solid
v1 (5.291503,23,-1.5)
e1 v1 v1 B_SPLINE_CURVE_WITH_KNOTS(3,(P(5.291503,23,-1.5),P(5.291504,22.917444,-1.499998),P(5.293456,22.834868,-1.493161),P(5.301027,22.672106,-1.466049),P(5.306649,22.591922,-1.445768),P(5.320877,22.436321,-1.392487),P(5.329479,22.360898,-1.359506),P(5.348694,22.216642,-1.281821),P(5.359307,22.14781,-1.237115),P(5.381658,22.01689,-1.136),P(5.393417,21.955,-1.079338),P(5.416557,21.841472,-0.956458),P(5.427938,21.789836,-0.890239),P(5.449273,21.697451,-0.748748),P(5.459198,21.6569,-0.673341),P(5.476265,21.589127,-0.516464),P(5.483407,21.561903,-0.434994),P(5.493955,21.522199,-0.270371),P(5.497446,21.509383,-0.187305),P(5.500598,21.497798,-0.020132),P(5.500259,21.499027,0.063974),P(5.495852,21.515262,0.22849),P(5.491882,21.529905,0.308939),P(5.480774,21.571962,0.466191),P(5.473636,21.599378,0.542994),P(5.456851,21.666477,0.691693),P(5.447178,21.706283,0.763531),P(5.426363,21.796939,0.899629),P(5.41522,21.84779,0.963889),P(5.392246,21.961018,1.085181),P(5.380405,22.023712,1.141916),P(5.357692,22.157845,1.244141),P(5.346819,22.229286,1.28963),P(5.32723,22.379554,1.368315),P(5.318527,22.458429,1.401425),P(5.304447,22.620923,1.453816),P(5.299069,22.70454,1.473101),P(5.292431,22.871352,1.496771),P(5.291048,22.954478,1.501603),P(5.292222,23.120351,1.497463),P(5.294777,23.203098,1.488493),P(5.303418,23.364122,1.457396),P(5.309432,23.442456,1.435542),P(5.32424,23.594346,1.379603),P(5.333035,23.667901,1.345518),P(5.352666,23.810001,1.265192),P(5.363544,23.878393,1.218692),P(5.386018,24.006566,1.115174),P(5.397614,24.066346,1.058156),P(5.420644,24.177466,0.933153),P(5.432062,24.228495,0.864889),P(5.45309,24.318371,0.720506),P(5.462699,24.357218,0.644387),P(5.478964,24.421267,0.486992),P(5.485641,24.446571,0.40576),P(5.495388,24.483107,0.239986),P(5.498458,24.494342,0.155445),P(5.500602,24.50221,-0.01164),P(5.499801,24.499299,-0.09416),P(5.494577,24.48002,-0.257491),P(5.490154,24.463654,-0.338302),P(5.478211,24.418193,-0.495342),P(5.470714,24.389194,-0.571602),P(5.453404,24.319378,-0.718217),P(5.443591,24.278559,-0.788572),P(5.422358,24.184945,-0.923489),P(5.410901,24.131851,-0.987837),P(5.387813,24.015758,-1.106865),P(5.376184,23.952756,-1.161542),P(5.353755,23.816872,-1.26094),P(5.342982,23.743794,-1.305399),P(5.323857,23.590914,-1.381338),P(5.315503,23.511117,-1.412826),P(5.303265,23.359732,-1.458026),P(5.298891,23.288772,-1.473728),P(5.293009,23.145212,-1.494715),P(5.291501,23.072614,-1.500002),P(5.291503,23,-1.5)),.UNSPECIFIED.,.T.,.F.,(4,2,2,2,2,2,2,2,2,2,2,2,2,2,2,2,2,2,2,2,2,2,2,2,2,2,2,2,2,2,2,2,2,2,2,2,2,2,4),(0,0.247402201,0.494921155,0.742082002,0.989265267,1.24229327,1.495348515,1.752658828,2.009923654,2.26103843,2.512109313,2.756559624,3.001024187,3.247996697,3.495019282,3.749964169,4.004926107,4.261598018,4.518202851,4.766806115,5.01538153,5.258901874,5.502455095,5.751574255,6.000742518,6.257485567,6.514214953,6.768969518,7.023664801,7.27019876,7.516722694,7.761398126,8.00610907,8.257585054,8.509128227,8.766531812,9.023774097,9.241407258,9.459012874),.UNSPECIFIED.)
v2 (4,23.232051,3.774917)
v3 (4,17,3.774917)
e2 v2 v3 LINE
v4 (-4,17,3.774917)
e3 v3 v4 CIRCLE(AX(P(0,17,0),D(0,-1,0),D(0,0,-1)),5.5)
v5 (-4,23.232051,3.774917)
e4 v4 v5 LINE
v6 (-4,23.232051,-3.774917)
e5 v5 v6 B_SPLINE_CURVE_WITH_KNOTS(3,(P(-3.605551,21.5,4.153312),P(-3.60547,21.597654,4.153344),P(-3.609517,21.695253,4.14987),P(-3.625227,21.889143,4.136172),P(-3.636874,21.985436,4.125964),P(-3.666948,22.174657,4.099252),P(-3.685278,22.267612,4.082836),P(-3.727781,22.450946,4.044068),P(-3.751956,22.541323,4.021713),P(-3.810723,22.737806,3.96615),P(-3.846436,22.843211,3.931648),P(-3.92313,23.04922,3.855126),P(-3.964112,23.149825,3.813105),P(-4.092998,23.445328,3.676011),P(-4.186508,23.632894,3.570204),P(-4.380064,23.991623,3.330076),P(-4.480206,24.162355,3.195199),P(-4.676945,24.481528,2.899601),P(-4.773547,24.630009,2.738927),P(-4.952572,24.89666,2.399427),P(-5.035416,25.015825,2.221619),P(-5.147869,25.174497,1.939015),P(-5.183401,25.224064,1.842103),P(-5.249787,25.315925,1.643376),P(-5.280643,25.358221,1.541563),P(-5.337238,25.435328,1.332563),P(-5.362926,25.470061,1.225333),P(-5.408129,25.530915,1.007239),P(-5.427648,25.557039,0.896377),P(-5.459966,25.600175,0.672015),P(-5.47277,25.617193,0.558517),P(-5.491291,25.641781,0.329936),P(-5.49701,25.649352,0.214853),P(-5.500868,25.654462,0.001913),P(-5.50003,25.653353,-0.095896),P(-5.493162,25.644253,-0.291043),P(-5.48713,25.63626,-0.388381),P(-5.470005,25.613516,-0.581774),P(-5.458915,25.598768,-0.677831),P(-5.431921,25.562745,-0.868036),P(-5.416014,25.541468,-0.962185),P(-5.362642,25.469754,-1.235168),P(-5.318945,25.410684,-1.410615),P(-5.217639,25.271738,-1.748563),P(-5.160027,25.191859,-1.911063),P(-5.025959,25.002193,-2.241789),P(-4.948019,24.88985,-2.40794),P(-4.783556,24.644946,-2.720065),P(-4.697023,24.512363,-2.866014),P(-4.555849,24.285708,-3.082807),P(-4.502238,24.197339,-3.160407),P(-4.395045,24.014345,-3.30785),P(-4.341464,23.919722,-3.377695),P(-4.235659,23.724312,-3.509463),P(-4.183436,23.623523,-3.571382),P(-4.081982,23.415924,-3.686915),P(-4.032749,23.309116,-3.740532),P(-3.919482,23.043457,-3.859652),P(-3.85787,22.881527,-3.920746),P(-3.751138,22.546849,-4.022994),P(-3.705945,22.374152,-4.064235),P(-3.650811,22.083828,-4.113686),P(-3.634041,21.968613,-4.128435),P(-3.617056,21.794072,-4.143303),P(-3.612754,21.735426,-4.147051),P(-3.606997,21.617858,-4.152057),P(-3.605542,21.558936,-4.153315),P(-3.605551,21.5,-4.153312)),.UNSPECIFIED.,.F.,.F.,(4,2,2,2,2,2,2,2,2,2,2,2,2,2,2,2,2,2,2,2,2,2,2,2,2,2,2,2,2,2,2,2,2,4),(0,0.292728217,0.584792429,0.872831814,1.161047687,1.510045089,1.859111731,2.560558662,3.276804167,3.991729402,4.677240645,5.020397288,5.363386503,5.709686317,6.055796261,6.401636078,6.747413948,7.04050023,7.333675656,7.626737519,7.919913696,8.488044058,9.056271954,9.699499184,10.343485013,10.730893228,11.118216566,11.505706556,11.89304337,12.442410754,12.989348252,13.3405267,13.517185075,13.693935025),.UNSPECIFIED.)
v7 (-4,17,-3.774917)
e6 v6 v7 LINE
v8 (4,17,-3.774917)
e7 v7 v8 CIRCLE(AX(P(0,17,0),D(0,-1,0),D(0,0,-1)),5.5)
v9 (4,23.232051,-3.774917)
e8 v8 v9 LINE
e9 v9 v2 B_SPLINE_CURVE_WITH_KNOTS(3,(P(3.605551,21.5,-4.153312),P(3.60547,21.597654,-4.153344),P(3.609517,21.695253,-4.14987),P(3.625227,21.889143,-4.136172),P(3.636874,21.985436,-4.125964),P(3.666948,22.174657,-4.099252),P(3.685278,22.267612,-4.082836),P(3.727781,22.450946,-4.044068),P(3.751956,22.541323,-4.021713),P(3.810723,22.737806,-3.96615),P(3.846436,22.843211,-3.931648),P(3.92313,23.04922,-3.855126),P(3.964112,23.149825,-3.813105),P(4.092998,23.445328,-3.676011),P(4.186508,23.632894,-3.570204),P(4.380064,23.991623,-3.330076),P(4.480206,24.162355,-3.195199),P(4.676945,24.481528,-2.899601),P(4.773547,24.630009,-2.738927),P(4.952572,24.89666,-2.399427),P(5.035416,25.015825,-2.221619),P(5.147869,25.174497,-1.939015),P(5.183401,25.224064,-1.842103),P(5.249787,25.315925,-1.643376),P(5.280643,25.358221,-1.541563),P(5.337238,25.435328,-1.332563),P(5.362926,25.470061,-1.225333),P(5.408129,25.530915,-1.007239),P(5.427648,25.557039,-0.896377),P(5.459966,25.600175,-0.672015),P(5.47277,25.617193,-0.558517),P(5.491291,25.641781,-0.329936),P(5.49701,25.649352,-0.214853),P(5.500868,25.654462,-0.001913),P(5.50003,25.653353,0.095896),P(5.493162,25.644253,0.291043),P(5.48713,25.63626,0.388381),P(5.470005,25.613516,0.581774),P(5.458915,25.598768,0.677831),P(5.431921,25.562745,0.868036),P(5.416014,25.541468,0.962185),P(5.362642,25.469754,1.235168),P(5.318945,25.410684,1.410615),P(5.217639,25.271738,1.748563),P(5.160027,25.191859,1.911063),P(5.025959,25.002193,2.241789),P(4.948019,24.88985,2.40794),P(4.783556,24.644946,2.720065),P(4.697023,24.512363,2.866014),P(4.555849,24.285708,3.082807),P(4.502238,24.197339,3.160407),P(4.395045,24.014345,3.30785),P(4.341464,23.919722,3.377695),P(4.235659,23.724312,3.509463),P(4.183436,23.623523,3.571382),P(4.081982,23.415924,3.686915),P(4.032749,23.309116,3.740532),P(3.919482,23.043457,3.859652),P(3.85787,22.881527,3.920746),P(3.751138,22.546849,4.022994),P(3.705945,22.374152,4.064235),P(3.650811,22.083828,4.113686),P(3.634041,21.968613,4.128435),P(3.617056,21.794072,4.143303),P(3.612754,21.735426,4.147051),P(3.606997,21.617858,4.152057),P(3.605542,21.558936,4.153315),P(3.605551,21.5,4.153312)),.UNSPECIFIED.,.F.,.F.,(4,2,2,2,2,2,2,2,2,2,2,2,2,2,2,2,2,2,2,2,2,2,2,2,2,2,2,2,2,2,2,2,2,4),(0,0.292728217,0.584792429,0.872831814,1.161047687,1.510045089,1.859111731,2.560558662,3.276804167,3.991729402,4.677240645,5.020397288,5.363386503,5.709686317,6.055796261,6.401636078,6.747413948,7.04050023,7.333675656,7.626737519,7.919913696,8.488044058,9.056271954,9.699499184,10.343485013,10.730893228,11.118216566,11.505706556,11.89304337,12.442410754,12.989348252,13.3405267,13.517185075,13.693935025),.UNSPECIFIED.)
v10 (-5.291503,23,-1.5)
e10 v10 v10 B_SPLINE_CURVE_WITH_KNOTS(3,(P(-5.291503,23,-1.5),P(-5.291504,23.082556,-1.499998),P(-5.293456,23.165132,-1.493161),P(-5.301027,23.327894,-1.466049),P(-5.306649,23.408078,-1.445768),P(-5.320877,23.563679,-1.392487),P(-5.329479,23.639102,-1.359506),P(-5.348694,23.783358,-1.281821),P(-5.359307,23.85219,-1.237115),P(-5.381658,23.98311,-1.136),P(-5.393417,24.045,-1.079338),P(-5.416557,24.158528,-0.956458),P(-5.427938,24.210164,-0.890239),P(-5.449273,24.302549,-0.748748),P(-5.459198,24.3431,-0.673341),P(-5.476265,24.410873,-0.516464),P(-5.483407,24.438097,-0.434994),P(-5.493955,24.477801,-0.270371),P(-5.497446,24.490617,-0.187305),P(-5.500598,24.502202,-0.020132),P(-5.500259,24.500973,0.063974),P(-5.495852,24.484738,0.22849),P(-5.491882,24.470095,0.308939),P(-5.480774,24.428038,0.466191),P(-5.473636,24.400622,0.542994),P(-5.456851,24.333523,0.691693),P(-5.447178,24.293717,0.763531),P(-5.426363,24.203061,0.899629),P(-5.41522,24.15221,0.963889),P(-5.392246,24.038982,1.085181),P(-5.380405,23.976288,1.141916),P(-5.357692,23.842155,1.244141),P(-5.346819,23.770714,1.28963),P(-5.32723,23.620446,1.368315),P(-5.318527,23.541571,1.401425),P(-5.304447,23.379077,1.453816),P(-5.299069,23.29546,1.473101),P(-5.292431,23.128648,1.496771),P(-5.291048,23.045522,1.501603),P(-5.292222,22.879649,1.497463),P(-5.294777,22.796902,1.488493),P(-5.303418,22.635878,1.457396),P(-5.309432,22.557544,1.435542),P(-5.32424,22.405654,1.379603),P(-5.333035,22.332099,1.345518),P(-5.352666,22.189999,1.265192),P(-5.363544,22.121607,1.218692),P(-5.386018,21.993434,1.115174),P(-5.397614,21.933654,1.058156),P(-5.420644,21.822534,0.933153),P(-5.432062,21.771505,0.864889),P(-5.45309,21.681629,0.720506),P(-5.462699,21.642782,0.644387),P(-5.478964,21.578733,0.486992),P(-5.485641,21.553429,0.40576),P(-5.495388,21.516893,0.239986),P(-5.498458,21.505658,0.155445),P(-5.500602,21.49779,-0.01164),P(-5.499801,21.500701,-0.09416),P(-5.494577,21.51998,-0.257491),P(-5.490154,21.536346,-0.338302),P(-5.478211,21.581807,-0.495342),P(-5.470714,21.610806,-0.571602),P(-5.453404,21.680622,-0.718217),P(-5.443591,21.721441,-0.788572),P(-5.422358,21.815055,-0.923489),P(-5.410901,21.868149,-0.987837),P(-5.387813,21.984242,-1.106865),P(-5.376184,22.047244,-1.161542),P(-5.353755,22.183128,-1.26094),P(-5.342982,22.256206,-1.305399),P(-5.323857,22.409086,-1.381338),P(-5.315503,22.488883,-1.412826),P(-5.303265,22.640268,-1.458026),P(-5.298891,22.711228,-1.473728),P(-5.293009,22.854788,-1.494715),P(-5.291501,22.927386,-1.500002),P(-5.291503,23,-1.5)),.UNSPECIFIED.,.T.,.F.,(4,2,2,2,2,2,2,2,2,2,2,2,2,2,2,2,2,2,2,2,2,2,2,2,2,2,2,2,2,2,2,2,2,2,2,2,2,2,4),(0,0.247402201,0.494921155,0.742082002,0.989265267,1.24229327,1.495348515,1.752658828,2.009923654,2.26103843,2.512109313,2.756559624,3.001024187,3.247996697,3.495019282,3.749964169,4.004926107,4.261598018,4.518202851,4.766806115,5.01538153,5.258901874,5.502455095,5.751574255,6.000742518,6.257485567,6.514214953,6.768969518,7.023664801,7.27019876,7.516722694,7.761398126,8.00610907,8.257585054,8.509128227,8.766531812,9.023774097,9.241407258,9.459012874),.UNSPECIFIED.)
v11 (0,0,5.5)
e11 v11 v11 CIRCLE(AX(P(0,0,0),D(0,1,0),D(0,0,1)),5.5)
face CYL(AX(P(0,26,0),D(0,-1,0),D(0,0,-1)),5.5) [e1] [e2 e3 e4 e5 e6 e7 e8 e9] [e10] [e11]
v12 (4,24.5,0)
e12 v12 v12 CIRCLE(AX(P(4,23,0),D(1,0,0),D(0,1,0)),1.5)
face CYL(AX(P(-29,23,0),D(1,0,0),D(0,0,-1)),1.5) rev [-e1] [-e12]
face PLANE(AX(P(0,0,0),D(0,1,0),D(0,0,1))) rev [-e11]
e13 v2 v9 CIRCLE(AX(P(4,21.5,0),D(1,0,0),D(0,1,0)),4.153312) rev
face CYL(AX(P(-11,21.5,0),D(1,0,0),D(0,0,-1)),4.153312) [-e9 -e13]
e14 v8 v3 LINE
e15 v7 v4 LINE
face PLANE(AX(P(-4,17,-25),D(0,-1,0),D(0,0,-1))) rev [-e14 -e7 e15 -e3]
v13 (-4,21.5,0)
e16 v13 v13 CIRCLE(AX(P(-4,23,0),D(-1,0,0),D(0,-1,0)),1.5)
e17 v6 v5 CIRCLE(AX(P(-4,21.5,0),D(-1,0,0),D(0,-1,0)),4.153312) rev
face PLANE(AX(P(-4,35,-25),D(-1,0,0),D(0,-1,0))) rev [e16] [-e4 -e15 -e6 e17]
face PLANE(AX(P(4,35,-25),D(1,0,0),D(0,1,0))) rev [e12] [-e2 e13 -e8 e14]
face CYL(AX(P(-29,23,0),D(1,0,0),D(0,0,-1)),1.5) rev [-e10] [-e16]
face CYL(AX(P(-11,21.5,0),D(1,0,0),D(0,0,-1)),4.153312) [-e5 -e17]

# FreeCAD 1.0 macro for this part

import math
import FreeCAD as App
import Part
import Sketcher

V = App.Vector


def add_polygon(sketch, points):
    """Adds a closed chain of lines whose ends are joined by coincident constraints."""
    first, n = sketch.GeometryCount, len(points)
    for a, b in zip(points, points[1:] + points[:1]):
        sketch.addGeometry(Part.LineSegment(App.Vector(*a, 0), App.Vector(*b, 0)), False)
    for i in range(n):
        sketch.addConstraint(Sketcher.Constraint("Coincident", first + i, 2, first + (i + 1) % n, 1))

doc = App.newDocument("Part")
body = doc.addObject("PartDesign::Body", "Body")

# Sketch on XZ plane
sketch1 = body.newObject("Sketcher::SketchObject", "Sketch")
sketch1.AttachmentSupport = (doc.getObject("XZ_Plane"), [""])
sketch1.MapMode = "FlatFace"
sketch1.addGeometry(Part.Circle(V(0, 0, 0), V(0, 0, 1), 6), False)
sketch1.addConstraint([
    Sketcher.Constraint("Coincident", 0, 3, -1, 1),
    Sketcher.Constraint("Diameter", 0, 11.0),
])
pad1 = body.newObject("PartDesign::Pad", "Pad")
pad1.Profile = sketch1
pad1.Length = 26
pad1.Reversed = True

# Sketch on XY plane
sketch2 = body.newObject("Sketcher::SketchObject", "Sketch001")
sketch2.AttachmentSupport = (doc.getObject("XY_Plane"), [""])
sketch2.MapMode = "FlatFace"
add_polygon(sketch2, [(-4, 35), (-4, 17), (4, 17), (4, 35)])  # lines 0-3
sketch2.addConstraint([
    Sketcher.Constraint("Vertical", 0),
    Sketcher.Constraint("Horizontal", 1),
    Sketcher.Constraint("Vertical", 2),
    Sketcher.Constraint("Horizontal", 3),
    Sketcher.Constraint("DistanceX", 1, 1, 1, 2, 8.0),
    Sketcher.Constraint("DistanceY", 0, 2, 0, 1, 18.0),
    Sketcher.Constraint("DistanceX", 0, 2, -1, 1, 4.0),
    Sketcher.Constraint("DistanceY", -1, 1, 0, 2, 17.0),
])
pocket1 = body.newObject("PartDesign::Pocket", "Pocket")
pocket1.Profile = sketch2
pocket1.Length = 50
pocket1.Midplane = True

# Sketch on YZ plane
sketch3 = body.newObject("Sketcher::SketchObject", "Sketch002")
sketch3.AttachmentSupport = (doc.getObject("YZ_Plane"), [""])
sketch3.MapMode = "FlatFace"
sketch3.AttachmentOffset = App.Placement(V(0, 0, -4), App.Rotation())
sketch3.addGeometry(Part.Circle(V(23, 0, 0), V(0, 0, 1), 1.5), False)
sketch3.addConstraint([
    Sketcher.Constraint("PointOnObject", 0, 3, -1),
    Sketcher.Constraint("Diameter", 0, 3.0),
    Sketcher.Constraint("DistanceX", -1, 1, 0, 3, 23.0),
])
pocket2 = body.newObject("PartDesign::Pocket", "Pocket001")
pocket2.Profile = sketch3
pocket2.Length = 50
pocket2.Midplane = True

# Sketch on YZ plane
sketch4 = body.newObject("Sketcher::SketchObject", "Sketch003")
sketch4.AttachmentSupport = (doc.getObject("YZ_Plane"), [""])
sketch4.MapMode = "FlatFace"
sketch4.addGeometry([
    Part.LineSegment(V(24.9, 12.2, 0), V(21.5, 4.2, 0)),  # 0
    Part.ArcOfCircle(Part.Circle(V(21.5, 0, 0), V(0, 0, 1), 4.2), math.radians(-90), math.radians(90)),  # 1
    Part.LineSegment(V(21.5, -4.2, 0), V(24.6, -13, 0)),  # 2
    Part.LineSegment(V(24.6, -13, 0), V(32.8, -0.6, 0)),  # 3
    Part.LineSegment(V(32.8, -0.6, 0), V(24.9, 12.2, 0)),  # 4
], False)
sketch4.addConstraint([
    Sketcher.Constraint("Coincident", 0, 2, 1, 2),
    Sketcher.Constraint("Coincident", 1, 1, 2, 1),
    Sketcher.Constraint("Coincident", 2, 2, 3, 1),
    Sketcher.Constraint("Coincident", 3, 2, 4, 1),
    Sketcher.Constraint("Coincident", 4, 2, 0, 1),
    Sketcher.Constraint("Symmetric", 0, 2, 1, 1, -1),
    Sketcher.Constraint("Vertical", 1, 3, 0, 2),
    Sketcher.Constraint("DistanceX", -1, 1, 1, 3, 21.5),
    Sketcher.Constraint("Radius", 1, 4.153312),
    Sketcher.Constraint("DistanceY", 2, 2, 1, 1, 8.838098),
    Sketcher.Constraint("Distance", 3, 14.824111),
    Sketcher.Constraint("Distance", 4, 15.060241),
    Sketcher.Constraint("DistanceX", -1, 1, 3, 2, 32.780719),
    Sketcher.Constraint("DistanceY", 3, 2, -1, 1, 0.629851),
    Sketcher.Constraint("DistanceY", -1, 1, 4, 2, 12.215122),
])
pocket3 = body.newObject("PartDesign::Pocket", "Pocket002")
pocket3.Profile = sketch4
pocket3.Length = 22
pocket3.Midplane = True

doc.recompute()
